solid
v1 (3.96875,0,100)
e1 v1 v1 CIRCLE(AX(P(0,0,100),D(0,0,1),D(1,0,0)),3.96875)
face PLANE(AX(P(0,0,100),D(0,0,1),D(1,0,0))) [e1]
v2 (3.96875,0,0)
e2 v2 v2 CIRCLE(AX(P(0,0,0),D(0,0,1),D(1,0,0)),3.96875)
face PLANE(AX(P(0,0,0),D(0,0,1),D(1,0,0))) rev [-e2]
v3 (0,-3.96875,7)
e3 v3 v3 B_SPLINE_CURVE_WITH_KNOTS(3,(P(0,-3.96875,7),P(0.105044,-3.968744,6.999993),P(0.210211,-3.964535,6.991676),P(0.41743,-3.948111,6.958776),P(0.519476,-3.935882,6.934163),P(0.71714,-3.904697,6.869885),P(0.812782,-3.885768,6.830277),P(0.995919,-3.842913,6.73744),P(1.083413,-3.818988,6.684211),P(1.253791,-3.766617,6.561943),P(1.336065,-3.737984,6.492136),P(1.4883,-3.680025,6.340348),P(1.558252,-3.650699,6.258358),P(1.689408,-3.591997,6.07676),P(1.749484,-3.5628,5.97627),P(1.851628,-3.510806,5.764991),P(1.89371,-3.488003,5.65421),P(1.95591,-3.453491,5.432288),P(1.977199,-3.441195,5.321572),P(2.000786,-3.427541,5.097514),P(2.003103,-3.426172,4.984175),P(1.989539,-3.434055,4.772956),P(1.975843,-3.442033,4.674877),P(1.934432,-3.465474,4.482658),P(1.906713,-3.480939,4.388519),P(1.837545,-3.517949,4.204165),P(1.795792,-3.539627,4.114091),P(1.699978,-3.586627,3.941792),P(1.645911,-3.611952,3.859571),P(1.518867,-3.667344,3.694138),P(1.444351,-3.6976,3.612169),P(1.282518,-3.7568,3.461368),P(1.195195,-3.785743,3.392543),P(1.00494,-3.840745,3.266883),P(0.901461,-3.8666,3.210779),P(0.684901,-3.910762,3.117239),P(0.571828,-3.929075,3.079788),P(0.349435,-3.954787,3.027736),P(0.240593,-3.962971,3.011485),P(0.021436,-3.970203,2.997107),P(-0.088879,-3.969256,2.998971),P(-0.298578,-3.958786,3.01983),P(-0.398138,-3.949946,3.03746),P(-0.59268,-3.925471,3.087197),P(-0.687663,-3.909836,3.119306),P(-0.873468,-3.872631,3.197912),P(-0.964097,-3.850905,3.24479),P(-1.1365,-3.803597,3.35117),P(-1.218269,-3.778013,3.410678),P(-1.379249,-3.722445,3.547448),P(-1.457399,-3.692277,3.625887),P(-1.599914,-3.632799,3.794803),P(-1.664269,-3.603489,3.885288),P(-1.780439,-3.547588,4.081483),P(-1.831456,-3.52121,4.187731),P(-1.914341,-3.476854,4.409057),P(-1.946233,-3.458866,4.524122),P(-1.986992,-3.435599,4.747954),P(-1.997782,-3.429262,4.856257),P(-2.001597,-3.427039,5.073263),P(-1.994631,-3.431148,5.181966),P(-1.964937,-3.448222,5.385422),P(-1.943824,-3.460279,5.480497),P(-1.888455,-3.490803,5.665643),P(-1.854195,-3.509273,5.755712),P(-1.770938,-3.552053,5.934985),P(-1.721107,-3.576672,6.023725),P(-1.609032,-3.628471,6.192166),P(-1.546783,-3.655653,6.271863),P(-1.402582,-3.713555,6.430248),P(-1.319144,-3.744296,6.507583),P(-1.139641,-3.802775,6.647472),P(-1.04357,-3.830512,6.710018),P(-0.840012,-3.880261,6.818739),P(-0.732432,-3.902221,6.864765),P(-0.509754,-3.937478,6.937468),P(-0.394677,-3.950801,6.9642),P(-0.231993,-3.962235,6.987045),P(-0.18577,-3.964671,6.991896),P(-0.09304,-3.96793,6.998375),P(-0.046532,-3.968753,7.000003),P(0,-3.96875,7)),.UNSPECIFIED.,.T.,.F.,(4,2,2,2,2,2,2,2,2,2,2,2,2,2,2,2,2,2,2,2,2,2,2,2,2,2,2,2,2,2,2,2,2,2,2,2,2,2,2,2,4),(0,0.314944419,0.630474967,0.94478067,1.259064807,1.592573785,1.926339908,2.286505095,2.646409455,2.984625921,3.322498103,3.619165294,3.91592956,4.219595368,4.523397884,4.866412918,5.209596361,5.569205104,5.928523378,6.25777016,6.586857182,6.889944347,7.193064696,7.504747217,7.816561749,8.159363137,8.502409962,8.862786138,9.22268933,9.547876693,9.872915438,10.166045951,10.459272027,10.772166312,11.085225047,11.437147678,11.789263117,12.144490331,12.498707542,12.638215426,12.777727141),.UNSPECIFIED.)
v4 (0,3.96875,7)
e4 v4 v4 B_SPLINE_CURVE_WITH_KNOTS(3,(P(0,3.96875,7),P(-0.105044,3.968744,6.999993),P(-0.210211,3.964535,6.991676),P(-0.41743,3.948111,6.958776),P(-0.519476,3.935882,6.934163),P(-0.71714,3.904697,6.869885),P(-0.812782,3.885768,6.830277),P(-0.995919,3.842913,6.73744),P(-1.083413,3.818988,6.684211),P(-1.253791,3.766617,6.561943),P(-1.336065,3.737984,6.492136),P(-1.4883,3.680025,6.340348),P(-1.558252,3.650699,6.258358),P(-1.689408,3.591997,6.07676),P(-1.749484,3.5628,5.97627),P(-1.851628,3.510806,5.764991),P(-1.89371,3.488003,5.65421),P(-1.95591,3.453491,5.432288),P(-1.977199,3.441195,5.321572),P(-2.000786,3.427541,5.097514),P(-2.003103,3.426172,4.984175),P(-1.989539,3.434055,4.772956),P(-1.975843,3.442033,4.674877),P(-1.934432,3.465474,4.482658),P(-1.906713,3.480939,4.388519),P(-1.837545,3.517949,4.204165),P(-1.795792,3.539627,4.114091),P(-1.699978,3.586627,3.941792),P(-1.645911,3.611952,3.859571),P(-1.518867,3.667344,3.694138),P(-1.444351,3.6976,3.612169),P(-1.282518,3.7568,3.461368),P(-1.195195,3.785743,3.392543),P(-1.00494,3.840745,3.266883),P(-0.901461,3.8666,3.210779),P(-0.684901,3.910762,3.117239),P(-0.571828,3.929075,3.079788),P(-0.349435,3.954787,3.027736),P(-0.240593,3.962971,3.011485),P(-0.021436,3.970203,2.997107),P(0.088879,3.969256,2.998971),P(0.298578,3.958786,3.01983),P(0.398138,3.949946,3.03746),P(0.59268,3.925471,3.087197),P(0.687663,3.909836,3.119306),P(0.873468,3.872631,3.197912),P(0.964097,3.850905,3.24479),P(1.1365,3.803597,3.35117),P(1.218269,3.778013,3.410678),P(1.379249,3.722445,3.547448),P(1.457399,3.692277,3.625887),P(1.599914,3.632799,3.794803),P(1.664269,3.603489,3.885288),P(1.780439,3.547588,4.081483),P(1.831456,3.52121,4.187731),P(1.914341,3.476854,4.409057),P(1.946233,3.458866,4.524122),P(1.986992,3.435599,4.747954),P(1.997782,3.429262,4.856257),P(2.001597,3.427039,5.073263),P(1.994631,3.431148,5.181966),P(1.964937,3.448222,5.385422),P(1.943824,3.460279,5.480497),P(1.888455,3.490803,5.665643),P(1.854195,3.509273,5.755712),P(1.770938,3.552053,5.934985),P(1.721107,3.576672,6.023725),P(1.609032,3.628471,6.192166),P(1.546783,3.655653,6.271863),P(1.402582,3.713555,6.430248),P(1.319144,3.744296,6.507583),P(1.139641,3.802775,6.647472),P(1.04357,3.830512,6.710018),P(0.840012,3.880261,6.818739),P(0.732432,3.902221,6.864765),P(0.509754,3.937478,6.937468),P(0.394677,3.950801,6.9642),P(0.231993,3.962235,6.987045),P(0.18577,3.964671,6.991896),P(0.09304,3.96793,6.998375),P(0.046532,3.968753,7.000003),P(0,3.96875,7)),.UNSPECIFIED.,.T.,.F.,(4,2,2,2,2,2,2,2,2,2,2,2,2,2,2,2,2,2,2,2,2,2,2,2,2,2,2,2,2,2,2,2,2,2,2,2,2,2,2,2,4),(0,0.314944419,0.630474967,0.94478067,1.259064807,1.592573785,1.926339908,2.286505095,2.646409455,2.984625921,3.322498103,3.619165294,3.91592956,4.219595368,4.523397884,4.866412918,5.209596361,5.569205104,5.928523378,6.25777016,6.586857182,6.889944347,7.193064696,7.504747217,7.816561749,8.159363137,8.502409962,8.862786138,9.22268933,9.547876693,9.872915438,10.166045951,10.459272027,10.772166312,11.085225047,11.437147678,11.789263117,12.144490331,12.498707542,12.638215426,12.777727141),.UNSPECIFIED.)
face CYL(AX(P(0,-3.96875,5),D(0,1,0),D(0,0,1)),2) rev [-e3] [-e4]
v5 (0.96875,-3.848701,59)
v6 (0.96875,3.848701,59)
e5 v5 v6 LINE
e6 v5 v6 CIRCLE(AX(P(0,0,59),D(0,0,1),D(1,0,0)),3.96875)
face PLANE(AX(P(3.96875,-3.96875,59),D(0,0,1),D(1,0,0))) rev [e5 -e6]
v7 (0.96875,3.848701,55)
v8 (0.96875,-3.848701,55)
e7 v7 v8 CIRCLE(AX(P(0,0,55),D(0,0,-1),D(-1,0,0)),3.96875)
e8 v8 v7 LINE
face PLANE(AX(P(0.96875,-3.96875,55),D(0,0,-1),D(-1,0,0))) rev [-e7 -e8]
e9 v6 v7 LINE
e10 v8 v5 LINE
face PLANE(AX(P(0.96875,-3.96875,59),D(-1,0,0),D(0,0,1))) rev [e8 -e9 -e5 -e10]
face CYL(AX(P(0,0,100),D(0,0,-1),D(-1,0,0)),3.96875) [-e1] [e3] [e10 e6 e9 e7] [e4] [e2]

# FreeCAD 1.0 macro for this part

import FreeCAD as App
import Part
import Sketcher

V = App.Vector
Q = App.Units.Quantity


def add_polygon(sketch, points):
    """Adds a closed chain of lines whose ends are joined by coincident constraints."""
    first, n = sketch.GeometryCount, len(points)
    for a, b in zip(points, points[1:] + points[:1]):
        sketch.addGeometry(Part.LineSegment(App.Vector(*a, 0), App.Vector(*b, 0)), False)
    for i in range(n):
        sketch.addConstraint(Sketcher.Constraint("Coincident", first + i, 2, first + (i + 1) % n, 1))

doc = App.newDocument("Part")
body = doc.addObject("PartDesign::Body", "Body")

sketch1 = body.newObject("Sketcher::SketchObject", "Sketch")
sketch1.AttachmentSupport = (doc.getObject("XY_Plane"), [""])
sketch1.MapMode = "FlatFace"
sketch1.addGeometry(Part.Circle(V(0, 0, 0), V(0, 0, 1), 4), False)
sketch1.addConstraint(Sketcher.Constraint("Coincident", 0, 3, -1, 1))
sketch1.addConstraint(Sketcher.Constraint("Diameter", 0, Q("7.9375 mm")))
pad1 = body.newObject("PartDesign::Pad", "Pad")
pad1.Profile = sketch1
pad1.Length = 100

sketch2 = body.newObject("Sketcher::SketchObject", "Sketch001")
sketch2.AttachmentSupport = (doc.getObject("XZ_Plane"), [""])
sketch2.MapMode = "FlatFace"
sketch2.addGeometry(Part.Circle(V(0, 5, 0), V(0, 0, 1), 2), False)
sketch2.addConstraint(Sketcher.Constraint("PointOnObject", 0, 3, -2))
sketch2.addConstraint(Sketcher.Constraint("Diameter", 0, Q("4 mm")))
sketch2.addConstraint(Sketcher.Constraint("DistanceY", -1, 1, 0, 3, Q("5 mm")))
pocket1 = body.newObject("PartDesign::Pocket", "Pocket")
pocket1.Profile = sketch2
pocket1.Type = "ThroughAll"
pocket1.Midplane = True

sketch3 = body.newObject("Sketcher::SketchObject", "Sketch002")
sketch3.AttachmentSupport = (doc.getObject("XZ_Plane"), [""])
sketch3.MapMode = "FlatFace"
add_polygon(sketch3, [(1, 55), (1, 59), (4, 59), (4, 55)])
sketch3.addConstraint(Sketcher.Constraint("Vertical", 0))
sketch3.addConstraint(Sketcher.Constraint("Horizontal", 1))
sketch3.addConstraint(Sketcher.Constraint("Vertical", 2))
sketch3.addConstraint(Sketcher.Constraint("Horizontal", 3))
sketch3.addConstraint(Sketcher.Constraint("DistanceX", 1, 1, 1, 2, Q("3 mm")))
sketch3.addConstraint(Sketcher.Constraint("DistanceY", 0, 1, 0, 2, Q("4 mm")))
sketch3.addConstraint(Sketcher.Constraint("DistanceY", -1, 1, 0, 2, Q("59 mm")))
sketch3.addConstraint(Sketcher.Constraint("DistanceX", -1, 1, 0, 2, Q("0.96875 mm")))
pocket2 = body.newObject("PartDesign::Pocket", "Pocket001")
pocket2.Profile = sketch3
pocket2.Type = "ThroughAll"
pocket2.Midplane = True

doc.recompute()
